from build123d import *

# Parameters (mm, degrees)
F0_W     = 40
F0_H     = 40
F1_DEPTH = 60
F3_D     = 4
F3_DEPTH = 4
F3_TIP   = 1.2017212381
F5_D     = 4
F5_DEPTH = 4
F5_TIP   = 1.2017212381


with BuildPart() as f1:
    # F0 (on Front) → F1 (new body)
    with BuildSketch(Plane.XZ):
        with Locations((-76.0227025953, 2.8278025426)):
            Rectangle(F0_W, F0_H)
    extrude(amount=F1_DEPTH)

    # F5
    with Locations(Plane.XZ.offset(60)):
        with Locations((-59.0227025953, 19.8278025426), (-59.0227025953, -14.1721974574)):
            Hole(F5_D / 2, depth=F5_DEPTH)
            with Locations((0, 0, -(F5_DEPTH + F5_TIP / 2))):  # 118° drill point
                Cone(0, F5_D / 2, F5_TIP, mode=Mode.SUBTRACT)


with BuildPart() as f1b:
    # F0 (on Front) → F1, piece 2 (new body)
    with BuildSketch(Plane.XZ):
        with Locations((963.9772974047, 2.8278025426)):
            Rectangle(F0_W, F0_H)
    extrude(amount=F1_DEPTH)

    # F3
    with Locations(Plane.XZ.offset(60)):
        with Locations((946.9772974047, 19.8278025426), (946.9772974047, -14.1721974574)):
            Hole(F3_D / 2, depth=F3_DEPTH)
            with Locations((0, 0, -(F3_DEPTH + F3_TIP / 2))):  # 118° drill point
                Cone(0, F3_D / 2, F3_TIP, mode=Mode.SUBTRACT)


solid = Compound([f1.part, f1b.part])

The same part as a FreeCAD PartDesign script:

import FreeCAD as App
import Part
import Sketcher

V = App.Vector
Q = App.Units.Quantity


def add_polygon(sketch, points):
    """Adds a closed chain of lines whose ends are joined by coincident constraints."""
    first, n = sketch.GeometryCount, len(points)
    for a, b in zip(points, points[1:] + points[:1]):
        sketch.addGeometry(Part.LineSegment(App.Vector(*a, 0), App.Vector(*b, 0)), False)
    for i in range(n):
        sketch.addConstraint(Sketcher.Constraint("Coincident", first + i, 2, first + (i + 1) % n, 1))

doc = App.newDocument("Part")
body = doc.addObject("PartDesign::Body", "Body")

sketch1 = body.newObject("Sketcher::SketchObject", "Sketch")
sketch1.AttachmentSupport = (doc.getObject("XZ_Plane"), [""])
sketch1.MapMode = "FlatFace"
add_polygon(sketch1, [(-96, 23), (-96, -17), (-56, -17), (-56, 23)])
sketch1.addConstraint(Sketcher.Constraint("Vertical", 0))
sketch1.addConstraint(Sketcher.Constraint("Horizontal", 1))
sketch1.addConstraint(Sketcher.Constraint("Vertical", 2))
sketch1.addConstraint(Sketcher.Constraint("Horizontal", 3))
sketch1.addConstraint(Sketcher.Constraint("Equal", 3, 0))
sketch1.addConstraint(Sketcher.Constraint("DistanceX", 1, 1, 1, 2, Q("40 mm")))
sketch1.addConstraint(Sketcher.Constraint("DistanceX", 0, 2, -1, 1, Q("96.022703 mm")))
sketch1.addConstraint(Sketcher.Constraint("DistanceY", 0, 2, -1, 1, Q("17.172197 mm")))
pad1 = body.newObject("PartDesign::Pad", "Pad")
pad1.Profile = sketch1
pad1.Length = 60

sketch2 = body.newObject("Sketcher::SketchObject", "Sketch001")
sketch2.AttachmentSupport = (doc.getObject("XZ_Plane"), [""])
sketch2.MapMode = "FlatFace"
sketch2.AttachmentOffset = App.Placement(V(0, 0, 60), App.Rotation())
sketch2.addGeometry(Part.Circle(V(-59, 19.8, 0), V(0, 0, 1), 2), False)
sketch2.addGeometry(Part.Circle(V(-59, -14.2, 0), V(0, 0, 1), 2), False)
sketch2.addConstraint(Sketcher.Constraint("Equal", 0, 1))
sketch2.addConstraint(Sketcher.Constraint("Vertical", 0, 3, 1, 3))
sketch2.addConstraint(Sketcher.Constraint("Diameter", 0, Q("4 mm")))
sketch2.addConstraint(Sketcher.Constraint("DistanceY", 1, 3, 0, 3, Q("34 mm")))
sketch2.addConstraint(Sketcher.Constraint("DistanceX", 0, 3, -1, 1, Q("59.022703 mm")))
sketch2.addConstraint(Sketcher.Constraint("DistanceY", -1, 1, 0, 3, Q("19.827803 mm")))
doc.recompute()
hole = body.newObject("PartDesign::Hole", "Hole")
hole.Profile = sketch2
hole.ThreadType = "None"
hole.Diameter = 4
hole.DepthType = "Dimension"
hole.Depth = 4
hole.DrillPoint = "Angled"
hole.DrillPointAngle = 118
body2 = doc.addObject("PartDesign::Body", "Body001")

sketch3 = body2.newObject("Sketcher::SketchObject", "Sketch002")
sketch3.AttachmentSupport = (doc.getObject("XZ_Plane001"), [""])
sketch3.MapMode = "FlatFace"
add_polygon(sketch3, [(944, 23), (944, -17), (984, -17), (984, 23)])
sketch3.addConstraint(Sketcher.Constraint("Vertical", 0))
sketch3.addConstraint(Sketcher.Constraint("Horizontal", 1))
sketch3.addConstraint(Sketcher.Constraint("Vertical", 2))
sketch3.addConstraint(Sketcher.Constraint("Horizontal", 3))
sketch3.addConstraint(Sketcher.Constraint("Equal", 3, 0))
sketch3.addConstraint(Sketcher.Constraint("DistanceX", 1, 1, 1, 2, Q("40 mm")))
sketch3.addConstraint(Sketcher.Constraint("DistanceX", -1, 1, 0, 2, Q("943.977297 mm")))
sketch3.addConstraint(Sketcher.Constraint("DistanceY", 0, 2, -1, 1, Q("17.172197 mm")))
pad2 = body2.newObject("PartDesign::Pad", "Pad001")
pad2.Profile = sketch3
pad2.Length = 60

sketch4 = body2.newObject("Sketcher::SketchObject", "Sketch003")
sketch4.AttachmentSupport = (doc.getObject("XZ_Plane001"), [""])
sketch4.MapMode = "FlatFace"
sketch4.AttachmentOffset = App.Placement(V(0, 0, 60), App.Rotation())
sketch4.addGeometry(Part.Circle(V(947, 19.8, 0), V(0, 0, 1), 2), False)
sketch4.addGeometry(Part.Circle(V(947, -14.2, 0), V(0, 0, 1), 2), False)
sketch4.addConstraint(Sketcher.Constraint("Equal", 0, 1))
sketch4.addConstraint(Sketcher.Constraint("Vertical", 0, 3, 1, 3))
sketch4.addConstraint(Sketcher.Constraint("Diameter", 0, Q("4 mm")))
sketch4.addConstraint(Sketcher.Constraint("DistanceY", 1, 3, 0, 3, Q("34 mm")))
sketch4.addConstraint(Sketcher.Constraint("DistanceX", -1, 1, 0, 3, Q("946.977297 mm")))
sketch4.addConstraint(Sketcher.Constraint("DistanceY", -1, 1, 0, 3, Q("19.827803 mm")))
doc.recompute()
hole2 = body2.newObject("PartDesign::Hole", "Hole001")
hole2.Profile = sketch4
hole2.ThreadType = "None"
hole2.Diameter = 4
hole2.DepthType = "Dimension"
hole2.Depth = 4
hole2.DrillPoint = "Angled"
hole2.DrillPointAngle = 118

doc.recompute()
